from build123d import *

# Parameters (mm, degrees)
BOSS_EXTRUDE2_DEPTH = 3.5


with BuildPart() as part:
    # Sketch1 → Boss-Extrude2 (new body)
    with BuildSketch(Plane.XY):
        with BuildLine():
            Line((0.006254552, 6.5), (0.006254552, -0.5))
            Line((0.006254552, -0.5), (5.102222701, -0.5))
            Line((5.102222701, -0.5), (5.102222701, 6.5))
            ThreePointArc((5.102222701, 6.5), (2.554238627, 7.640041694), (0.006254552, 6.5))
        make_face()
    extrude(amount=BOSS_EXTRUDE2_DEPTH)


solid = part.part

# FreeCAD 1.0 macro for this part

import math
import FreeCAD as App
import Part
import Sketcher
from FreeCAD import Vector

doc = App.newDocument("Part")
body = doc.addObject("PartDesign::Body", "Body")

# Sketch on XY plane
sketch1 = body.newObject("Sketcher::SketchObject", "Sketch")
sketch1.AttachmentSupport = (doc.getObject("XY_Plane"), [""])
sketch1.MapMode = "FlatFace"
sketch1.addGeometry([
    Part.LineSegment(Vector(0.006255, 6.5, 0), Vector(0.006255, -0.5, 0)),
    Part.LineSegment(Vector(0.006255, -0.5, 0), Vector(5.102223, -0.5, 0)),
    Part.LineSegment(Vector(5.102223, -0.5, 0), Vector(5.102223, 6.5, 0)),
    Part.ArcOfCircle(Part.Circle(Vector(2.554239, 4.222659, 0), Vector(0, 0, 1), 3.417383), math.radians(41.789757), math.radians(138.210243)),
], False)
sketch1.addConstraint([
    Sketcher.Constraint("Coincident", 0, 2, 1, 1),
    Sketcher.Constraint("Coincident", 1, 2, 2, 1),
    Sketcher.Constraint("Coincident", 2, 2, 3, 1),
    Sketcher.Constraint("Coincident", 3, 2, 0, 1),
    Sketcher.Constraint("Vertical", 0),
    Sketcher.Constraint("Horizontal", 1),
    Sketcher.Constraint("Vertical", 2),
    Sketcher.Constraint("Horizontal", 2, 2, 3, 2),
    Sketcher.Constraint("DistanceY", 0, 2, 0, 1, 7.0),
    Sketcher.Constraint("DistanceY", 0, 2, -1, 1, 0.5),
    Sketcher.Constraint("Radius", 3, 3.417383),
    Sketcher.Constraint("DistanceX", 1, 1, 1, 2, 5.095968),
    Sketcher.Constraint("DistanceX", -1, 1, 3, 3, 2.554239),
])
pad1 = body.newObject("PartDesign::Pad", "Pad")
pad1.Profile = sketch1
pad1.Length = 3.5

doc.recompute()
